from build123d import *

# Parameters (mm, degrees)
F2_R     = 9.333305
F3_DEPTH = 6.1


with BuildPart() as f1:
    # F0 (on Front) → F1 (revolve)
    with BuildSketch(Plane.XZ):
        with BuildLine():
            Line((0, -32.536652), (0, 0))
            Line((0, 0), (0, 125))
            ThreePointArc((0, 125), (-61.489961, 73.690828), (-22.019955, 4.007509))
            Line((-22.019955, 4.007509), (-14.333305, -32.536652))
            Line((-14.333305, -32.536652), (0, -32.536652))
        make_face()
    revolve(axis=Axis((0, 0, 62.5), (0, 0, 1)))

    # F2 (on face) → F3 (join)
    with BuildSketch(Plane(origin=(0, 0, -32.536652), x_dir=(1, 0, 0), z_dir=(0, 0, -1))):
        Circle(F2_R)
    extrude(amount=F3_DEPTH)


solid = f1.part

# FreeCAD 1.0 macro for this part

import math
import FreeCAD as App
import Part
import Sketcher
Q = App.Units.Quantity

doc = App.newDocument("Part")
body = doc.addObject("PartDesign::Body", "Body")

# Sketch on XZ plane
sketch1 = doc.addObject("Sketcher::SketchObject", "Sketch")
body.addObject(sketch1)
sketch1.AttachmentSupport = (doc.XZ_Plane, [""])
sketch1.MapMode = "FlatFace"
sketch1.addGeometry([
    Part.LineSegment(App.Vector(0, -33, 0), App.Vector(0, 125, 0)),
    Part.ArcOfCircle(Part.Circle(App.Vector(0, 63, 0), App.Vector(0, 0, 1), 62), math.radians(90), math.radians(249)),
    Part.LineSegment(App.Vector(-22, 4, 0), App.Vector(-14, -33, 0)),
    Part.LineSegment(App.Vector(-14, -33, 0), App.Vector(0, -33, 0)),
], False)
sketch1.addConstraint([
    Sketcher.Constraint("Coincident", 0, 2, 1, 1),
    Sketcher.Constraint("Coincident", 1, 2, 2, 1),
    Sketcher.Constraint("Coincident", 2, 2, 3, 1),
    Sketcher.Constraint("Coincident", 3, 2, 0, 1),
    Sketcher.Constraint("Vertical", 0),
    Sketcher.Constraint("Horizontal", 3),
    Sketcher.Constraint("PointOnObject", 1, 3, -2),
    Sketcher.Constraint("PointOnObject", 0, 2, -2),
    Sketcher.Constraint("Radius", 1, Q("62.5 mm")),
    Sketcher.Constraint("DistanceY", -1, 1, 0, 2, Q("125 mm")),
    Sketcher.Constraint("DistanceY", 0, 1, 0, 2, Q("157.536652 mm")),
    Sketcher.Constraint("Distance", 2, Q("37.343812 mm")),
    Sketcher.Constraint("DistanceX", 3, 1, 3, 2, Q("14.333305 mm")),
])
revolution = doc.addObject("PartDesign::Revolution", "Revolution")
body.addObject(revolution)
revolution.Profile = sketch1
revolution.ReferenceAxis = (sketch1, ["V_Axis"])
revolution.Angle = 360

# Sketch on XY plane
sketch2 = doc.addObject("Sketcher::SketchObject", "Sketch001")
body.addObject(sketch2)
sketch2.AttachmentSupport = (doc.XY_Plane, [""])
sketch2.MapMode = "FlatFace"
sketch2.AttachmentOffset = App.Placement(App.Vector(0, 0, -32.536652), App.Rotation())
sketch2.addGeometry(Part.Circle(App.Vector(0, 0, 0), App.Vector(0, 0, 1), 9), False)
sketch2.addConstraint([
    Sketcher.Constraint("Coincident", 0, 3, -1, 1),
    Sketcher.Constraint("Diameter", 0, Q("18.66661 mm")),
])
pad1 = doc.addObject("PartDesign::Pad", "Pad")
body.addObject(pad1)
pad1.Profile = sketch2
pad1.Length = 6.1
pad1.Reversed = True

doc.recompute()
